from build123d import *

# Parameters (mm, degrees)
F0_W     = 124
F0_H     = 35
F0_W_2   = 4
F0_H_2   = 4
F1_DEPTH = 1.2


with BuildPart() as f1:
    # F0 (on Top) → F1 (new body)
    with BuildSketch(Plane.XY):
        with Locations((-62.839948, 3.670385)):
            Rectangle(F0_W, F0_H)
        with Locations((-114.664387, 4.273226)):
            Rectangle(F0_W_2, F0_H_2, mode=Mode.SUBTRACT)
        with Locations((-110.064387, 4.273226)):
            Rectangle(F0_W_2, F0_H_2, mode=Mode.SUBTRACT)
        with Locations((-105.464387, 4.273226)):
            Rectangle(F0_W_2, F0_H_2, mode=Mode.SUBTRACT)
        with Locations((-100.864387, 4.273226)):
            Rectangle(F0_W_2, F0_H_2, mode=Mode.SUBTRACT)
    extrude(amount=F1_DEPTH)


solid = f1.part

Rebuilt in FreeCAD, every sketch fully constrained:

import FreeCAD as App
import Part
import Sketcher

V = App.Vector


def add_polygon(sketch, points):
    """Adds a closed chain of lines whose ends are joined by coincident constraints."""
    first, n = sketch.GeometryCount, len(points)
    for a, b in zip(points, points[1:] + points[:1]):
        sketch.addGeometry(Part.LineSegment(App.Vector(*a, 0), App.Vector(*b, 0)), False)
    for i in range(n):
        sketch.addConstraint(Sketcher.Constraint("Coincident", first + i, 2, first + (i + 1) % n, 1))

doc = App.newDocument("Part")
body = doc.addObject("PartDesign::Body", "Body")

sketch1 = body.newObject("Sketcher::SketchObject", "Sketch")
sketch1.AttachmentSupport = (doc.getObject("XY_Plane"), [""])
sketch1.MapMode = "FlatFace"
add_polygon(sketch1, [(-124.8, 21.2), (-124.8, -13.8), (-0.8, -13.8), (-0.8, 21.2)])
add_polygon(sketch1, [(-112.7, 2.3), (-116.7, 2.3), (-116.7, 6.3), (-112.7, 6.3)])
add_polygon(sketch1, [(-108.1, 2.3), (-112.1, 2.3), (-112.1, 6.3), (-108.1, 6.3)])
add_polygon(sketch1, [(-103.5, 2.3), (-107.5, 2.3), (-107.5, 6.3), (-103.5, 6.3)])
add_polygon(sketch1, [(-98.9, 2.3), (-102.9, 2.3), (-102.9, 6.3), (-98.9, 6.3)])
sketch1.addConstraint([
    Sketcher.Constraint("Vertical", 0),
    Sketcher.Constraint("Horizontal", 1),
    Sketcher.Constraint("Vertical", 2),
    Sketcher.Constraint("Horizontal", 3),
    Sketcher.Constraint("Horizontal", 4),
    Sketcher.Constraint("Vertical", 5),
    Sketcher.Constraint("Horizontal", 6),
    Sketcher.Constraint("Vertical", 7),
    Sketcher.Constraint("Horizontal", 8),
    Sketcher.Constraint("Vertical", 9),
    Sketcher.Constraint("Horizontal", 10),
    Sketcher.Constraint("Vertical", 11),
    Sketcher.Constraint("Horizontal", 12),
    Sketcher.Constraint("Vertical", 13),
    Sketcher.Constraint("Horizontal", 14),
    Sketcher.Constraint("Vertical", 15),
    Sketcher.Constraint("Horizontal", 16),
    Sketcher.Constraint("Vertical", 17),
    Sketcher.Constraint("Horizontal", 18),
    Sketcher.Constraint("Vertical", 19),
    Sketcher.Constraint("Horizontal", 7, 2, 8, 2),
    Sketcher.Constraint("Horizontal", 6, 2, 9, 2),
    Sketcher.Constraint("Horizontal", 11, 2, 12, 2),
    Sketcher.Constraint("Horizontal", 10, 2, 13, 2),
    Sketcher.Constraint("Horizontal", 15, 2, 16, 2),
    Sketcher.Constraint("Horizontal", 14, 2, 17, 2),
    Sketcher.Constraint("Equal", 6, 8),
    Sketcher.Constraint("Equal", 10, 12),
    Sketcher.Constraint("Equal", 14, 16),
    Sketcher.Constraint("Equal", 18, 5),
    Sketcher.Constraint("DistanceX", 1, 1, 1, 2, 124.0),
    Sketcher.Constraint("DistanceX", 4, 2, 4, 1, 4.0),
    Sketcher.Constraint("DistanceY", 0, 2, 0, 1, 35.0),
    Sketcher.Constraint("DistanceX", 7, 2, 8, 2, 0.6),
    Sketcher.Constraint("DistanceX", 11, 2, 12, 2, 0.6),
    Sketcher.Constraint("DistanceX", 15, 2, 16, 2, 0.6),
    Sketcher.Constraint("DistanceX", 0, 2, -1, 1, 124.839948),
    Sketcher.Constraint("DistanceX", 0, 2, 4, 2, 8.175561),
    Sketcher.Constraint("DistanceY", 0, 2, 4, 2, 16.102841),
    Sketcher.Constraint("DistanceY", 0, 2, -1, 1, 13.829615),
])
pad1 = body.newObject("PartDesign::Pad", "Pad")
pad1.Profile = sketch1
pad1.Length = 1.2

doc.recompute()
